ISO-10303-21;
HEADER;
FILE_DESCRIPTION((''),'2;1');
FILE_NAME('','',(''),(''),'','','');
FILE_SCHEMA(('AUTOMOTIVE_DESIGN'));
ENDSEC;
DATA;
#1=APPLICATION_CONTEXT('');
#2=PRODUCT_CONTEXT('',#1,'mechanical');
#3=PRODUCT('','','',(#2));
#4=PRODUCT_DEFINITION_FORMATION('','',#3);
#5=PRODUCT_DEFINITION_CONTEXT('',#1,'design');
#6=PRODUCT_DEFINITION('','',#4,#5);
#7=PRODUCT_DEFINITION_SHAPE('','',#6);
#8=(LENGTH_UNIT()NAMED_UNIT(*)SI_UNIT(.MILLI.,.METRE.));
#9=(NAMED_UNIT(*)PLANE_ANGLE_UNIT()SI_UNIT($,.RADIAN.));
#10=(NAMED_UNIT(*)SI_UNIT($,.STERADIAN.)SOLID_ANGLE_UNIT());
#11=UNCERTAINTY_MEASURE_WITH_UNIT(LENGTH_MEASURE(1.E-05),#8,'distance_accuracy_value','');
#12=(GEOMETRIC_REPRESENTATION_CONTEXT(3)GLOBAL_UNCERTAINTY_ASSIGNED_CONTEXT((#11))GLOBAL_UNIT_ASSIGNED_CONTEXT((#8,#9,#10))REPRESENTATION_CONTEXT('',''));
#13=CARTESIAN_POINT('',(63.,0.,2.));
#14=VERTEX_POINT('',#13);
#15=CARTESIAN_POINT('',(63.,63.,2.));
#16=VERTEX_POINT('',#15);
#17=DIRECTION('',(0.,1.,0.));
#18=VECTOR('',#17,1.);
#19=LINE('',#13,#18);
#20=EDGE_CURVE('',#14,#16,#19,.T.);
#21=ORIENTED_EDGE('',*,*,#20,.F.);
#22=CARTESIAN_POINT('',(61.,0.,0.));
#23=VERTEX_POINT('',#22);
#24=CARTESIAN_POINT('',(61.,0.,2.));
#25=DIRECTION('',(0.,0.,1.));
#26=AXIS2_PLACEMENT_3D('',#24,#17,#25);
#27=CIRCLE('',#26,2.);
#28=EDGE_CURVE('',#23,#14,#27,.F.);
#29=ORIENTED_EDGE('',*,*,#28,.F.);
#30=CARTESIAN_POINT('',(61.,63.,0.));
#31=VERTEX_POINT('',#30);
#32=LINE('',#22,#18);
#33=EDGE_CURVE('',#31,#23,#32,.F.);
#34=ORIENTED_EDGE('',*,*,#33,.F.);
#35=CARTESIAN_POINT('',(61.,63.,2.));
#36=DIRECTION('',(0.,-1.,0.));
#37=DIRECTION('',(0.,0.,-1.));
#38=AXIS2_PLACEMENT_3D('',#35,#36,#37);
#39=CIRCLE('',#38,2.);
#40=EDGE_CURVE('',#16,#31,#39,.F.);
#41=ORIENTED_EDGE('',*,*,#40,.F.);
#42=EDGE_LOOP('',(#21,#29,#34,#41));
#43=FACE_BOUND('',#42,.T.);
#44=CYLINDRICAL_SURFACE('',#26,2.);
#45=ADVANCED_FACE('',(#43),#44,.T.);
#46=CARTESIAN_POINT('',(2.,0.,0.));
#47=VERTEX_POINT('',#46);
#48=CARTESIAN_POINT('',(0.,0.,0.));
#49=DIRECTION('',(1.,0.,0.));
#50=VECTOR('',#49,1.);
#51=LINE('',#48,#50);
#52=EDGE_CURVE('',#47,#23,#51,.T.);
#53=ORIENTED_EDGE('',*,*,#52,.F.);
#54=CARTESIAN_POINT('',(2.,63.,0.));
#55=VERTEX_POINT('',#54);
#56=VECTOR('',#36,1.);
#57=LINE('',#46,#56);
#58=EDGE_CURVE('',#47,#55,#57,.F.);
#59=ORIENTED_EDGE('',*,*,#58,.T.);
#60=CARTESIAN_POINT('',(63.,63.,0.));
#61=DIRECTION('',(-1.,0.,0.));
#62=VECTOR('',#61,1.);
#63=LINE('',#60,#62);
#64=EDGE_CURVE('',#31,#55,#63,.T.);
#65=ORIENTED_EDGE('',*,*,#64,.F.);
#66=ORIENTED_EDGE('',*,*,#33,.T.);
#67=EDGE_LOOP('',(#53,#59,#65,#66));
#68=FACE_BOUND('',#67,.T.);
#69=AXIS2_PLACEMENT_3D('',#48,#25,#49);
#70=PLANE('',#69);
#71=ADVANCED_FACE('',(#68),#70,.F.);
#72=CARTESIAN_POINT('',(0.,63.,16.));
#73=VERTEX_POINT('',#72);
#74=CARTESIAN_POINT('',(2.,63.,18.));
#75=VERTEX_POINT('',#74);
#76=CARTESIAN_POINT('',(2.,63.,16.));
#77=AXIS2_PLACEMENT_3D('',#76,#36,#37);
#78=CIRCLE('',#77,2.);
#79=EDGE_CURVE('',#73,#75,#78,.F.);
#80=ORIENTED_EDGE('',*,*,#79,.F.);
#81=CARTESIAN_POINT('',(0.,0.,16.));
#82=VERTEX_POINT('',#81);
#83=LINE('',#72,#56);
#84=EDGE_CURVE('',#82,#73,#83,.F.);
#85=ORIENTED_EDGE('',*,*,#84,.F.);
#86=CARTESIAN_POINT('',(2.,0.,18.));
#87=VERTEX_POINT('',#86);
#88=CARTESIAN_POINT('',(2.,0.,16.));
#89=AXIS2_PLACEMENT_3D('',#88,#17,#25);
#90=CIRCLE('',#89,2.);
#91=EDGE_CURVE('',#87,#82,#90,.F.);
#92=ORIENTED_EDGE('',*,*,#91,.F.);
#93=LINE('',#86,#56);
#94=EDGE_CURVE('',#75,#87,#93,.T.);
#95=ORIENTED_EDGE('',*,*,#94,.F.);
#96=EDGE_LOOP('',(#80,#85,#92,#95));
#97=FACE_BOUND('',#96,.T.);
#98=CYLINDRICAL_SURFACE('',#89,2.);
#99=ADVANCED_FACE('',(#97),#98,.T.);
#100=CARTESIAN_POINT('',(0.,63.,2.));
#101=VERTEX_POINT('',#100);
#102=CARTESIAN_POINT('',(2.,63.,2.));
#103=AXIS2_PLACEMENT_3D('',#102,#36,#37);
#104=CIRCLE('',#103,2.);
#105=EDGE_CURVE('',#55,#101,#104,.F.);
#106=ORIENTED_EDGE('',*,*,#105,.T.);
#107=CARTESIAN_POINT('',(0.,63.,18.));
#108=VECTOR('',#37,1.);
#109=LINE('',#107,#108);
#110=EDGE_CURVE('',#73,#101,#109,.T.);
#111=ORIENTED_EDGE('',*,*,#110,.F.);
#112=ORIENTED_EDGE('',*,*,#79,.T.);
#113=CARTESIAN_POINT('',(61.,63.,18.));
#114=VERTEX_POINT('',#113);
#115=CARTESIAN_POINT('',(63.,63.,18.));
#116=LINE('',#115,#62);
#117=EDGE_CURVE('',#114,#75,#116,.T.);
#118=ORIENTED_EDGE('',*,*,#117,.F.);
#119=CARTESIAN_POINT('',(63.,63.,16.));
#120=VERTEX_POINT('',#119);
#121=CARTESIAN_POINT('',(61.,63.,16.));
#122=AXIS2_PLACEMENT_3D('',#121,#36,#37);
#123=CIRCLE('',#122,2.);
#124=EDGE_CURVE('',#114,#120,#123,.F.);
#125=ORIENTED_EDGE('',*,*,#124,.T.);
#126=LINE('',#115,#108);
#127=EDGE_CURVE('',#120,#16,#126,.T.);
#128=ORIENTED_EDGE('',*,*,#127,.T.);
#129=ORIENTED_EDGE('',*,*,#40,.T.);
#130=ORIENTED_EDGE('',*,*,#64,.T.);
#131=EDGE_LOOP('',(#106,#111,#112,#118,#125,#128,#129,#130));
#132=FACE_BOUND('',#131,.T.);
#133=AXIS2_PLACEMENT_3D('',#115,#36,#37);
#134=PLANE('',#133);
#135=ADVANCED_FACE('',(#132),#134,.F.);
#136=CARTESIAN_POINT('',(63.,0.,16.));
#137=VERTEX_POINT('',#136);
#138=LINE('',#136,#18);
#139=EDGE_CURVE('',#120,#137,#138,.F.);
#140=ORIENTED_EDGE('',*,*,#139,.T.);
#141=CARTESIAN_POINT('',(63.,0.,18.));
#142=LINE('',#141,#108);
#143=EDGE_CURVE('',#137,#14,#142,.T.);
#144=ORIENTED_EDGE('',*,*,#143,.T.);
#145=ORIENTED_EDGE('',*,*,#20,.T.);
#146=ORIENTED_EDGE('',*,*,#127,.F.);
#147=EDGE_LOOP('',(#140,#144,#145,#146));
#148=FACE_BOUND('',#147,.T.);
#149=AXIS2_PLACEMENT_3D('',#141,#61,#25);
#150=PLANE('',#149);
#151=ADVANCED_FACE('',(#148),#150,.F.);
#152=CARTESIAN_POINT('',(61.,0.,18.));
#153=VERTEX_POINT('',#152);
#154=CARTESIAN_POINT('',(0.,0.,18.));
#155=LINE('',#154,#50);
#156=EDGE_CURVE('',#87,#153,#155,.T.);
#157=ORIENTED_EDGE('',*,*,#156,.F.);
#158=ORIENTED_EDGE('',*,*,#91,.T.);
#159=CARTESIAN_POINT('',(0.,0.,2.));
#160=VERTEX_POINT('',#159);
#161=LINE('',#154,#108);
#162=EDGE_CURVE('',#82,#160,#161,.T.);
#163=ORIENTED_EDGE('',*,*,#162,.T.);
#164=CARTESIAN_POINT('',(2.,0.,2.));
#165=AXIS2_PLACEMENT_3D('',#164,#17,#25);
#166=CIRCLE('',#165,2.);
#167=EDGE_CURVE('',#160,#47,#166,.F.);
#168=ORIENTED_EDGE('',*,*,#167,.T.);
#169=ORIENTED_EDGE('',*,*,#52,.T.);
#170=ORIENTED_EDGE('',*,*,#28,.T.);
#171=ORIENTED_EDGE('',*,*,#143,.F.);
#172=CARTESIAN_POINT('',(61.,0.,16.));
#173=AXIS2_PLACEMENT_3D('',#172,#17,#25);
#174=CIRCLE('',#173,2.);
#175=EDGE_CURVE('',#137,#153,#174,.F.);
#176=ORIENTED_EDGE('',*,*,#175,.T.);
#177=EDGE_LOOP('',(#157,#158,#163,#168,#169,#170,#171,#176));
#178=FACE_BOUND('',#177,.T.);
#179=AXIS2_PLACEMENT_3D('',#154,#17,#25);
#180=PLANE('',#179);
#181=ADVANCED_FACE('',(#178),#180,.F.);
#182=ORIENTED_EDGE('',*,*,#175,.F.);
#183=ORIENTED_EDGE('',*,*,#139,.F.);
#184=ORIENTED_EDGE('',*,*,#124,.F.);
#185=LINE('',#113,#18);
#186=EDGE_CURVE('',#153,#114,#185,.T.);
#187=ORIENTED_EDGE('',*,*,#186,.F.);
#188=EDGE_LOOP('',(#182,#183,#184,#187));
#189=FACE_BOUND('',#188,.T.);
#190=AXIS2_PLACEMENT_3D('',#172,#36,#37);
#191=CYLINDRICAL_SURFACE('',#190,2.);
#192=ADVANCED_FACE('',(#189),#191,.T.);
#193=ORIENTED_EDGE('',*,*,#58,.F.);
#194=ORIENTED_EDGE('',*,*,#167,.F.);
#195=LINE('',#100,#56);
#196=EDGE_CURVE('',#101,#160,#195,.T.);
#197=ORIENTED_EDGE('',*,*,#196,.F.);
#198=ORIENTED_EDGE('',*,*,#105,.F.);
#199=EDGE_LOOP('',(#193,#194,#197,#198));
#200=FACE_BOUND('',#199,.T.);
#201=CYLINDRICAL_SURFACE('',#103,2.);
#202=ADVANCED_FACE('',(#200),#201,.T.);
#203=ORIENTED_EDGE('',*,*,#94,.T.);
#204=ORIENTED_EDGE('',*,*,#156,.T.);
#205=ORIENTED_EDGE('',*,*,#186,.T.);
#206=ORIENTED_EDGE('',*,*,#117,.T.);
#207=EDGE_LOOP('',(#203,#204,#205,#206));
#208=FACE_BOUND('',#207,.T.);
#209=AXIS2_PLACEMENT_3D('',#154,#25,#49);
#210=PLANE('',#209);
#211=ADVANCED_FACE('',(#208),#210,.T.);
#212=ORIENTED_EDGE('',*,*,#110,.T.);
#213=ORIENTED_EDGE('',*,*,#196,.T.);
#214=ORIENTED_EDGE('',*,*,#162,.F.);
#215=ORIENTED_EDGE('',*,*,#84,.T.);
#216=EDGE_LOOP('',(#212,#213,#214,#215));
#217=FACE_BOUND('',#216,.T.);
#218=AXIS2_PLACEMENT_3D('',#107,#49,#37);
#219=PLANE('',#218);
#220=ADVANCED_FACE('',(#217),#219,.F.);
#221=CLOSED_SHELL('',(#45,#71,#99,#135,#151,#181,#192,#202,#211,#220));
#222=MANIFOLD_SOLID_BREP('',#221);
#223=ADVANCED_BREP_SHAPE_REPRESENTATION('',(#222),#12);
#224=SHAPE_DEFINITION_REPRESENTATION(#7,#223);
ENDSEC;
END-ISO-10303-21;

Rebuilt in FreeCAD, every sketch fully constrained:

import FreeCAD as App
import Part
import Sketcher
from FreeCAD import Vector


def edges_at(feature, points):
    """Names of the edges that pass closest to the given points."""
    edges = feature.Shape.Edges
    near = lambda p: min(range(len(edges)), key=lambda i: edges[i].distToShape(Part.Vertex(*p))[0])
    return sorted({f"Edge{near(p) + 1}" for p in points})


def add_polygon(sketch, points):
    """Adds a closed chain of lines whose ends are joined by coincident constraints."""
    first, n = sketch.GeometryCount, len(points)
    for a, b in zip(points, points[1:] + points[:1]):
        sketch.addGeometry(Part.LineSegment(App.Vector(*a, 0), App.Vector(*b, 0)), False)
    for i in range(n):
        sketch.addConstraint(Sketcher.Constraint("Coincident", first + i, 2, first + (i + 1) % n, 1))

doc = App.newDocument("Part")
body = doc.addObject("PartDesign::Body", "Body")

# Sketch on XY plane
sketch1 = doc.addObject("Sketcher::SketchObject", "Sketch")
body.addObject(sketch1)
sketch1.AttachmentSupport = (doc.XY_Plane, [""])
sketch1.MapMode = "FlatFace"
add_polygon(sketch1, [(0, 63), (0, 0), (63, 0), (63, 63)])  # lines 0-3
sketch1.addConstraint(Sketcher.Constraint("Vertical", 0))
sketch1.addConstraint(Sketcher.Constraint("Horizontal", 1))
sketch1.addConstraint(Sketcher.Constraint("Vertical", 2))
sketch1.addConstraint(Sketcher.Constraint("Horizontal", 3))
sketch1.addConstraint(Sketcher.Constraint("Coincident", 0, 2, -1, 1))
sketch1.addConstraint(Sketcher.Constraint("Equal", 3, 0))
sketch1.addConstraint(Sketcher.Constraint("DistanceX", 1, 1, 1, 2, 63.0))
pad1 = doc.addObject("PartDesign::Pad", "Pad")
body.addObject(pad1)
pad1.Profile = sketch1
pad1.Length = 18
doc.recompute()

fillet = doc.addObject("PartDesign::Fillet", "Fillet")
body.addObject(fillet)
fillet.Base = (pad1, edges_at(pad1, [
    (63, 31.5, 18),
    (0, 31.5, 18),
    (63, 31.5, 0),
    (0, 31.5, 0),
]))
fillet.Radius = 2

doc.recompute()
